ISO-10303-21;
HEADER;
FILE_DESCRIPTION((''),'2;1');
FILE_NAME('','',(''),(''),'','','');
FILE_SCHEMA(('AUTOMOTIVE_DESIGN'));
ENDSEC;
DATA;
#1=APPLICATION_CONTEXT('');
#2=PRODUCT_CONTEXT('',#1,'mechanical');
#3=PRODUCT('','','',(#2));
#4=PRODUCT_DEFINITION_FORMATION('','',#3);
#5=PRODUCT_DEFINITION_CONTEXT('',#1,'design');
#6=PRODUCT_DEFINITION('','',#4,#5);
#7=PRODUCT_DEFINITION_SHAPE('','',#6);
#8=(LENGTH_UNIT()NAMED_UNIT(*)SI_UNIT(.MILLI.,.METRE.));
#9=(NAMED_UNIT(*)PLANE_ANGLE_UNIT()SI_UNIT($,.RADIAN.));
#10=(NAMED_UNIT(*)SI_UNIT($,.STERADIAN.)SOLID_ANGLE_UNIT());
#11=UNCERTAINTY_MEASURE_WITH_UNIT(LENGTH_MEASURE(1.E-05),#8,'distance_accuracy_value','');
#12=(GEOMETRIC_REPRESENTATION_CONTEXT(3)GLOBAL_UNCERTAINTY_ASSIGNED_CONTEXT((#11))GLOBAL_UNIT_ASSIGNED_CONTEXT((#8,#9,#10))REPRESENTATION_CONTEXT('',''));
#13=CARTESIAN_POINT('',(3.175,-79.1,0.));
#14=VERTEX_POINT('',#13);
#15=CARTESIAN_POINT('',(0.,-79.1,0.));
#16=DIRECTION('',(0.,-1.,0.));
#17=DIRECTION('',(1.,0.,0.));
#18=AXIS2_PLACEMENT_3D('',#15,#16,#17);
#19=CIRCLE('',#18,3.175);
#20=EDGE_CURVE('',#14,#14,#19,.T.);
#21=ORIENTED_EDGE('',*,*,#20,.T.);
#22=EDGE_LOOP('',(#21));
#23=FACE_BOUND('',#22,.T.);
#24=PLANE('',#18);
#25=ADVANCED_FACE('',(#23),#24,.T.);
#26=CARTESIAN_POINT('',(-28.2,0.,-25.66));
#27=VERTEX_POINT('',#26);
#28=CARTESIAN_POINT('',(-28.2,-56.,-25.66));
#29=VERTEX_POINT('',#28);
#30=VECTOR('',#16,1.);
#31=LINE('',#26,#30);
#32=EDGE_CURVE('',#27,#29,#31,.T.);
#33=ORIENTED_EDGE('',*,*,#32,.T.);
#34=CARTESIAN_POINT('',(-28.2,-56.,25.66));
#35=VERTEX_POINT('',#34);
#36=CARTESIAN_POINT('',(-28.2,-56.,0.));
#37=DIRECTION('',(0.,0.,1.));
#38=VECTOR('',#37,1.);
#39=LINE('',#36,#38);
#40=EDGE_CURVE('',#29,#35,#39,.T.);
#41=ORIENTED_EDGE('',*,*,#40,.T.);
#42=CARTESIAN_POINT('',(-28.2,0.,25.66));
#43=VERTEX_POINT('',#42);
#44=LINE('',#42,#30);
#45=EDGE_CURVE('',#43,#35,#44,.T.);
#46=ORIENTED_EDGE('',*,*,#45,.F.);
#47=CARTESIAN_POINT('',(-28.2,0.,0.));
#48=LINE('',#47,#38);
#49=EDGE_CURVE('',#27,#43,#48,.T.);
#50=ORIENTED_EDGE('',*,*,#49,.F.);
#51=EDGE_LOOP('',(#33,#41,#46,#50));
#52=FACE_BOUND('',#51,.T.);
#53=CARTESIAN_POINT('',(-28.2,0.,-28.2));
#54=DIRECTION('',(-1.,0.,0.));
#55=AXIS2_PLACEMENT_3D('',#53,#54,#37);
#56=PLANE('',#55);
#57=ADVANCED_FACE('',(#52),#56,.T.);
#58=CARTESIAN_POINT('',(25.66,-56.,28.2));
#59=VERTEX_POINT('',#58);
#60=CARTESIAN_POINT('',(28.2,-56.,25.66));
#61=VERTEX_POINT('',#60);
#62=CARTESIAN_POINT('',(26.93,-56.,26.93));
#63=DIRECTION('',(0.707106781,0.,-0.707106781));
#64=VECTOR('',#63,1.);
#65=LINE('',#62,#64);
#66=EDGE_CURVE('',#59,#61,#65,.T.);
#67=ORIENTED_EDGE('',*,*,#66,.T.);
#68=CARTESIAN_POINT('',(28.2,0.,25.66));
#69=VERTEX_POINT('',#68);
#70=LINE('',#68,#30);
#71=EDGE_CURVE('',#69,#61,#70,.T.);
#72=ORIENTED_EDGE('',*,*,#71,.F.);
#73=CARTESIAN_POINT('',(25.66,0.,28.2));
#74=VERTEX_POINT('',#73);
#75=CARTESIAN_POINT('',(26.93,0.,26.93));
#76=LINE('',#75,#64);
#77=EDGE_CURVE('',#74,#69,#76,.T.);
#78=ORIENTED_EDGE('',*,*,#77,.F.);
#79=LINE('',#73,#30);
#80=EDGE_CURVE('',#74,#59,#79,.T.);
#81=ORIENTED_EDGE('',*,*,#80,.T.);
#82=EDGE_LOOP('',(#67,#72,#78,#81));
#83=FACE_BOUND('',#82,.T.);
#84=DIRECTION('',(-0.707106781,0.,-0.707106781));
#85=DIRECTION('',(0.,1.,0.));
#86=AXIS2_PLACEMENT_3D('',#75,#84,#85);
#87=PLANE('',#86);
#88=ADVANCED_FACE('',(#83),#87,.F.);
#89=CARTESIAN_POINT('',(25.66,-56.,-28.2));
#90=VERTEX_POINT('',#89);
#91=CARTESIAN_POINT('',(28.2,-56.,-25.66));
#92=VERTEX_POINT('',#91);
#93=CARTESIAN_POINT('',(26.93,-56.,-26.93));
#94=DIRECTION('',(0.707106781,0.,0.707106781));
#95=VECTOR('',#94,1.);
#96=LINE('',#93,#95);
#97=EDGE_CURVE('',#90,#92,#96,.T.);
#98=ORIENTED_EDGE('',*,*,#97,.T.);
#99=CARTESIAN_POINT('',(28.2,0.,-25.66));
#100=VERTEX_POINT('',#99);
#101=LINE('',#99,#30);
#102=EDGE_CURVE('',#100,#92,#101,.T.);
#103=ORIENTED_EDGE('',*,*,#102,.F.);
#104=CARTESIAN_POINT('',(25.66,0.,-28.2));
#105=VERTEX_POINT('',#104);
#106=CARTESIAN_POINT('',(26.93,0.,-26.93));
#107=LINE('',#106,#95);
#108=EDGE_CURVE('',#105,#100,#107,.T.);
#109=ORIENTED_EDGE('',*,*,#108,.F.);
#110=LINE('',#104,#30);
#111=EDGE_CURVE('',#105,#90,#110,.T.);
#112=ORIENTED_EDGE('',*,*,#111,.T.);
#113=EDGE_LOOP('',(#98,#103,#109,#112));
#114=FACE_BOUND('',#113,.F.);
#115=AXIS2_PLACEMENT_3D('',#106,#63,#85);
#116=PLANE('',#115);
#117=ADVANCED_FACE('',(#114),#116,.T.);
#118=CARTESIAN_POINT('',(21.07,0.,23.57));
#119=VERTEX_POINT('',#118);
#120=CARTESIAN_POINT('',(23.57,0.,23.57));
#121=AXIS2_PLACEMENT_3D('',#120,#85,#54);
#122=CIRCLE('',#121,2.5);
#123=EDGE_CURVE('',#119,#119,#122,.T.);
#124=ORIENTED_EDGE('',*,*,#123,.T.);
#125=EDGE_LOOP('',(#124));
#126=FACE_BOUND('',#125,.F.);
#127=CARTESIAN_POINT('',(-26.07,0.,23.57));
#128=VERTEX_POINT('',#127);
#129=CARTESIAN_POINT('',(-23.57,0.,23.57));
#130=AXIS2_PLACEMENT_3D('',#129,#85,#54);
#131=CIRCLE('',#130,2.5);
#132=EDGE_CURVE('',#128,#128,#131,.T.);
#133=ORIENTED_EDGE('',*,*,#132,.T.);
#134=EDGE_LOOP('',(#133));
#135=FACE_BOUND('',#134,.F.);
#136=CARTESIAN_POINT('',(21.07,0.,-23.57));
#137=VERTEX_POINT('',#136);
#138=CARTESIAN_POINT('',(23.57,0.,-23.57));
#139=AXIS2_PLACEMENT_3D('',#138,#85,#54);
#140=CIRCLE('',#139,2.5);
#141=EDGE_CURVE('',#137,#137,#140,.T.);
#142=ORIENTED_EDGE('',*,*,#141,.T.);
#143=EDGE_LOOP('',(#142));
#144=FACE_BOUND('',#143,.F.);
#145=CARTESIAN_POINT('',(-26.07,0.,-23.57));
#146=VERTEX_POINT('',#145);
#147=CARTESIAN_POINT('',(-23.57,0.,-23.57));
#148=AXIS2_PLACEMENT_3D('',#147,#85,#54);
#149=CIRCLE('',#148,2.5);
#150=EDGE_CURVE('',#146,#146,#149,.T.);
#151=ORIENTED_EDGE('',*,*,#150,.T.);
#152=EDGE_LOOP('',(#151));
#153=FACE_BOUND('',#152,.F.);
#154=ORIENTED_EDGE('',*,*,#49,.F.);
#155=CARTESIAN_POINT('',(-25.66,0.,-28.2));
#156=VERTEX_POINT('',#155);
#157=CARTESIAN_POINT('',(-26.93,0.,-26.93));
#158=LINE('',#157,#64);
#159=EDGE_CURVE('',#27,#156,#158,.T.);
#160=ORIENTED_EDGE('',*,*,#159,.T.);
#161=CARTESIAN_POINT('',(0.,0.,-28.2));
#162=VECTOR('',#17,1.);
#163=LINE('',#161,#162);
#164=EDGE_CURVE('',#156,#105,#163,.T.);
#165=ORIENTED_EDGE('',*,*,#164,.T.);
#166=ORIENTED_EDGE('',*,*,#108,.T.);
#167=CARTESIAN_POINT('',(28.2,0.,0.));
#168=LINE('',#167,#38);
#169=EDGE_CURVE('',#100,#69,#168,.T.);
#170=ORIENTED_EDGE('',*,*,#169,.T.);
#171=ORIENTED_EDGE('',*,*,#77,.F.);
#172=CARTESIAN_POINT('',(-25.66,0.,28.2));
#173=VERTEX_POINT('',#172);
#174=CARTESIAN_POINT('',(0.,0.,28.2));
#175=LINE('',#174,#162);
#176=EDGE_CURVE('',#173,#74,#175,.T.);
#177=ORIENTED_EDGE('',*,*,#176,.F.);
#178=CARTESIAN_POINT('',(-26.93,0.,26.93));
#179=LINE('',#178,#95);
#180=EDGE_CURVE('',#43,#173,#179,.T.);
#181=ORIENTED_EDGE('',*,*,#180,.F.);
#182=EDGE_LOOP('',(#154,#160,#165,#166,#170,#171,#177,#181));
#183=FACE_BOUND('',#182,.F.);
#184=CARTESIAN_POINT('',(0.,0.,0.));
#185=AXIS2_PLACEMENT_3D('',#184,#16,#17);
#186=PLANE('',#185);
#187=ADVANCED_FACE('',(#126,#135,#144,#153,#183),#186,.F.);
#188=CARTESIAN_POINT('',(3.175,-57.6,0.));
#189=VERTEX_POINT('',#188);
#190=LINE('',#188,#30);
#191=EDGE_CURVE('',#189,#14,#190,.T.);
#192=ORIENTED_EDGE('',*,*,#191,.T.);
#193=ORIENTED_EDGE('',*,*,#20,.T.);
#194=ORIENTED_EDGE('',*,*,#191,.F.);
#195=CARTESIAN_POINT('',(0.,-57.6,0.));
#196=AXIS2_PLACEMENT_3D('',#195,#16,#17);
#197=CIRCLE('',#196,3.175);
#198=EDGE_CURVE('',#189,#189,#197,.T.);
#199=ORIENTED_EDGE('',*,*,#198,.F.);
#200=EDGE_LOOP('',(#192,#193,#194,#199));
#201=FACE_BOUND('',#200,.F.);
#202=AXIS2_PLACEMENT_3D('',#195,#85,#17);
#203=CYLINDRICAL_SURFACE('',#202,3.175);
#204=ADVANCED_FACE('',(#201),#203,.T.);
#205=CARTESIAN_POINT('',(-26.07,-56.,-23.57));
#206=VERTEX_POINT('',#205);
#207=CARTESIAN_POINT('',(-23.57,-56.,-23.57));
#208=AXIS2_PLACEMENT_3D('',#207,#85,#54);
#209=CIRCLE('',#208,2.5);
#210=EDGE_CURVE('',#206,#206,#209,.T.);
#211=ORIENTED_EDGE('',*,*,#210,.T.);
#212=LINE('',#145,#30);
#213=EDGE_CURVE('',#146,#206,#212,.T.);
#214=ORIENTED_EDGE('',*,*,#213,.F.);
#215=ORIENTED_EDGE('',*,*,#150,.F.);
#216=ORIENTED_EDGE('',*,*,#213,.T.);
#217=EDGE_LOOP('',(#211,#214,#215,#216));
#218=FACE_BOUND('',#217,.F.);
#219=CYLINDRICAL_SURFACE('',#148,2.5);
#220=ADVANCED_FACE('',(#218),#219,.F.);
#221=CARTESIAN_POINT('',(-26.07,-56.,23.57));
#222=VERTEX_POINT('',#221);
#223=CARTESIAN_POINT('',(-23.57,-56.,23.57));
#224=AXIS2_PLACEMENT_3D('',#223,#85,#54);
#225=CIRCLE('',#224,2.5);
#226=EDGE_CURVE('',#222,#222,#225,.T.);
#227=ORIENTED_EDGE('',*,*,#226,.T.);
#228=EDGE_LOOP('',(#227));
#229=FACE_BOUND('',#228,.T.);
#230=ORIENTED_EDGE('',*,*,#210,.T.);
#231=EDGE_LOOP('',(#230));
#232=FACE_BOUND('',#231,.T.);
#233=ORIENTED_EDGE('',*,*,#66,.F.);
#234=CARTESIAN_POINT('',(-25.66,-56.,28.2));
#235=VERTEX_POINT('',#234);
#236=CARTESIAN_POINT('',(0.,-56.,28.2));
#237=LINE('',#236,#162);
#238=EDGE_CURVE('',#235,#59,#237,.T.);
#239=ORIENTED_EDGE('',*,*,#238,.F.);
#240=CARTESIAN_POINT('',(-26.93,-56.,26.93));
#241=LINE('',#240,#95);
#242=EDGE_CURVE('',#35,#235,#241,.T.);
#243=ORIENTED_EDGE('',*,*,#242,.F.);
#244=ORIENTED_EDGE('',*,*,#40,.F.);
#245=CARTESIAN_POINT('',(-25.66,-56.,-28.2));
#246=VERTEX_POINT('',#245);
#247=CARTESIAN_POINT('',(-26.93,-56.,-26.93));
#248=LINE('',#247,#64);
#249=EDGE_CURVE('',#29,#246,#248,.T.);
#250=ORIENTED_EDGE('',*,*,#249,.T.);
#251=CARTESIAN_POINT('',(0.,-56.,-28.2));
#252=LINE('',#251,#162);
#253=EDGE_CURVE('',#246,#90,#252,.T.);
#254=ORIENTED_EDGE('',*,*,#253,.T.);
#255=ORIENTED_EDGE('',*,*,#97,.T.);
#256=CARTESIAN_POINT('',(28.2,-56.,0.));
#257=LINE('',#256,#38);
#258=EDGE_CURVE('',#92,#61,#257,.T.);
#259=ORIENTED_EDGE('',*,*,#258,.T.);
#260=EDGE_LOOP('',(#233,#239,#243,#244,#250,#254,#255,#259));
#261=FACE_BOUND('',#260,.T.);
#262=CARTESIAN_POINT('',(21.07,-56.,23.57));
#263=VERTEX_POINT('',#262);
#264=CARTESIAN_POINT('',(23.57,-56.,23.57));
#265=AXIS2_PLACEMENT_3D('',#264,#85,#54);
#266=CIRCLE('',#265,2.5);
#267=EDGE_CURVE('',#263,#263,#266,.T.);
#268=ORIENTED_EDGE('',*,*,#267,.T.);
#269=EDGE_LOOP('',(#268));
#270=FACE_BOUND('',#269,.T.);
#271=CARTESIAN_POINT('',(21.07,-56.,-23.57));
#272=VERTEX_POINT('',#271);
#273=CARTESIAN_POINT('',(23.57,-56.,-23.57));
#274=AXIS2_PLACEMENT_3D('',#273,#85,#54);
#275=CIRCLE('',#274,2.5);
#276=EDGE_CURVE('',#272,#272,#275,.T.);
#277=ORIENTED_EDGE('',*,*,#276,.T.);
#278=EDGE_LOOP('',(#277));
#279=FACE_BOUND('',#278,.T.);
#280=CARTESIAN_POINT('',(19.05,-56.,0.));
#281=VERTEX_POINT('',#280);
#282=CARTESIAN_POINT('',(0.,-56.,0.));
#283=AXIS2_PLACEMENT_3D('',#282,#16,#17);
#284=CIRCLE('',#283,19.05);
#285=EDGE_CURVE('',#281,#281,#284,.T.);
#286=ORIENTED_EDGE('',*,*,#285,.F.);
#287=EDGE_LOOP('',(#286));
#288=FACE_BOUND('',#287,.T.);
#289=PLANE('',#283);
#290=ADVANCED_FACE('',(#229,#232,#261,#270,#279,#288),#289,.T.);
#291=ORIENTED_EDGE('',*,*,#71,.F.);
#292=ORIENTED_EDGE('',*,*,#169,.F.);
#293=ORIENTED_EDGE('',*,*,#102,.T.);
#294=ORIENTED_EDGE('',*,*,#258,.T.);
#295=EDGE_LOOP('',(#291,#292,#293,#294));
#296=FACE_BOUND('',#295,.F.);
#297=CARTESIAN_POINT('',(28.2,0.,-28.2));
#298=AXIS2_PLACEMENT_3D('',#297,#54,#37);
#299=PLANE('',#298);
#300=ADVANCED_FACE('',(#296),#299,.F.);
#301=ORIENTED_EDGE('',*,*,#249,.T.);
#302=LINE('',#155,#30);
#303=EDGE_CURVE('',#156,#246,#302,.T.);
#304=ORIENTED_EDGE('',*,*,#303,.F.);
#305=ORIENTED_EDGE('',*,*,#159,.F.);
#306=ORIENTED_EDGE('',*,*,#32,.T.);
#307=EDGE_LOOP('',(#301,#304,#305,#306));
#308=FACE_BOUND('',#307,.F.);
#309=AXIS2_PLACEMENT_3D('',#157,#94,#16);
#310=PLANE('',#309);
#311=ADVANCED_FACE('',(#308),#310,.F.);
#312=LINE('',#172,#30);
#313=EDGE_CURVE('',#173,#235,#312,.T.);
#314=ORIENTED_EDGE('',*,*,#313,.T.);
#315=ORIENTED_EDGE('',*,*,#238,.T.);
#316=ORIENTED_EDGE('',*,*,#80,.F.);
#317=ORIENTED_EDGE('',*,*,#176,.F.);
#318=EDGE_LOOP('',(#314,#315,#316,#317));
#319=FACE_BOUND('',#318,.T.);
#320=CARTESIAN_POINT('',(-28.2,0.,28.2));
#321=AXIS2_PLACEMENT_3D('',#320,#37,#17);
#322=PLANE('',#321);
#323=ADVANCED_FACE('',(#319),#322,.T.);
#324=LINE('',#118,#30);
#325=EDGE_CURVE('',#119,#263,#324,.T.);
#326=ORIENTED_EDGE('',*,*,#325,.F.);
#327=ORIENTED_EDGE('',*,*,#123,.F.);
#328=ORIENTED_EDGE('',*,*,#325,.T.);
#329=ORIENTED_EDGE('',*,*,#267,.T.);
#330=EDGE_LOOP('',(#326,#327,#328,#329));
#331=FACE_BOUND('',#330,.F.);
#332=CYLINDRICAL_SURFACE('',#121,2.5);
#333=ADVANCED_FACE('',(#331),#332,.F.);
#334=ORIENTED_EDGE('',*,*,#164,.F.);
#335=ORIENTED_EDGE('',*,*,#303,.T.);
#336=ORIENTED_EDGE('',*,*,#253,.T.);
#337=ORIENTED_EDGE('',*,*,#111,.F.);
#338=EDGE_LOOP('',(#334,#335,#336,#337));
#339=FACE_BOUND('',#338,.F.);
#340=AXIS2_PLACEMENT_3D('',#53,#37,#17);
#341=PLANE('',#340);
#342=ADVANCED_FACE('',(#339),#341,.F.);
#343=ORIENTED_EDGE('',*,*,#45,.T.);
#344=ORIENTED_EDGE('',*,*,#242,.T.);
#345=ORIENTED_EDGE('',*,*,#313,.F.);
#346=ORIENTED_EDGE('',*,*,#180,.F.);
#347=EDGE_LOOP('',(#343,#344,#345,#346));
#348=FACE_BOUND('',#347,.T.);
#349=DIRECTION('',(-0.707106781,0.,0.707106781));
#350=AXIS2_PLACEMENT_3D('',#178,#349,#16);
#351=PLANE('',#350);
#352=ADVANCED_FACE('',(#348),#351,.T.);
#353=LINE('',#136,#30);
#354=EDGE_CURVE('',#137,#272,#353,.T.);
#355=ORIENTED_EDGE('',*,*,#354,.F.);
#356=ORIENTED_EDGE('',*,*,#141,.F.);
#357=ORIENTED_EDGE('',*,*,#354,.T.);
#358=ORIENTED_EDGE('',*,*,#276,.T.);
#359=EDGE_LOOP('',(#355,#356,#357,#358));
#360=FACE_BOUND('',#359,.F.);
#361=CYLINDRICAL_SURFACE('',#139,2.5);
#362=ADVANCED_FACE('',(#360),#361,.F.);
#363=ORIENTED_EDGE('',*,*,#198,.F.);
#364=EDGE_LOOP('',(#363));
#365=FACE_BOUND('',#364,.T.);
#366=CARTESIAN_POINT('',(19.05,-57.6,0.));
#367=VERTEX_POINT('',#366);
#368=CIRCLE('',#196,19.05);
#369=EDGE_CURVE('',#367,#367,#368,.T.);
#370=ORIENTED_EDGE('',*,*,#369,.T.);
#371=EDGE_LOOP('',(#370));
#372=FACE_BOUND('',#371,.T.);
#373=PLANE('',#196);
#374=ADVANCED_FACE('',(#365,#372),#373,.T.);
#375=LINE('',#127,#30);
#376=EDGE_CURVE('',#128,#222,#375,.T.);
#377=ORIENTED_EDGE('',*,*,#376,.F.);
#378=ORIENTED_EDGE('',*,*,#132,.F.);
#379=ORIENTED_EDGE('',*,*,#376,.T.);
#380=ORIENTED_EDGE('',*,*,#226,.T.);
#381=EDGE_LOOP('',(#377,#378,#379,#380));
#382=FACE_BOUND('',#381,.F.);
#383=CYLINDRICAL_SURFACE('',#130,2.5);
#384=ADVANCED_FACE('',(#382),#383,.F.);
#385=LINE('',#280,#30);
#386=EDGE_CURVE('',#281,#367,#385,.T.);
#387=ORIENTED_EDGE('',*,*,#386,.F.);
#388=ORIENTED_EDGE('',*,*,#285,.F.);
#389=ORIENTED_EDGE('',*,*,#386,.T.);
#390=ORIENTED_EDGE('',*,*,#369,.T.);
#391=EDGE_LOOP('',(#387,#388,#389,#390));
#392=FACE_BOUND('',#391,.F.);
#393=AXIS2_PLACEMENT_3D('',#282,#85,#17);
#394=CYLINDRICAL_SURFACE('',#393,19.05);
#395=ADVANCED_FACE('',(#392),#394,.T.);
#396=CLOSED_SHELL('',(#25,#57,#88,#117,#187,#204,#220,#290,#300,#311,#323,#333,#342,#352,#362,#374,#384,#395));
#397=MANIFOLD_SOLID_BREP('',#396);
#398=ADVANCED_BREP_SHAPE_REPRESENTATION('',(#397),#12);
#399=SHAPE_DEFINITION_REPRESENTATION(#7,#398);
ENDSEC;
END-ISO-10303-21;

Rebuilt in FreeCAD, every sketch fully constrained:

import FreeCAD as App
import Part
import Sketcher
Q = App.Units.Quantity


def edges_at(feature, points):
    """Names of the edges that pass closest to the given points."""
    edges = feature.Shape.Edges
    near = lambda p: min(range(len(edges)), key=lambda i: edges[i].distToShape(Part.Vertex(*p))[0])
    return sorted({f"Edge{near(p) + 1}" for p in points})

doc = App.newDocument("Part")
params = doc.addObject("Spreadsheet::Sheet", "Params")
for row, (alias, value) in enumerate([
    ("sketch1_width", "56.4 mm"),
    ("pad1_length", "56 mm"),
    ("sketch2_diameter", "38.1 mm"),
    ("pad2_length", "1.6 mm"),
    ("sketch3_diameter", "6.35 mm"),
    ("pad3_length", "21.5 mm"),
    ("sketch4_diameter", "5 mm"),
    ("chamfer_size", "2.54 mm"),
], start=1):
    params.set(f"A{row}", alias)
    params.set(f"B{row}", "=" + value)
    params.setAlias(f"B{row}", alias)

body = doc.addObject("PartDesign::Body", "Body")

# Sketch on XZ plane
sketch1 = doc.addObject("Sketcher::SketchObject", "Sketch")
body.addObject(sketch1)
sketch1.AttachmentSupport = (doc.XZ_Plane, [""])
sketch1.MapMode = "FlatFace"
sketch1.addGeometry([
    Part.LineSegment(App.Vector(-28.2, 28.2, 0), App.Vector(-28.2, -28.2, 0)),
    Part.LineSegment(App.Vector(-28.2, -28.2, 0), App.Vector(28.2, -28.2, 0)),
    Part.LineSegment(App.Vector(28.2, -28.2, 0), App.Vector(28.2, 28.2, 0)),
    Part.LineSegment(App.Vector(28.2, 28.2, 0), App.Vector(-28.2, 28.2, 0)),
], False)
sketch1.addConstraint([
    Sketcher.Constraint("Coincident", 0, 2, 1, 1),
    Sketcher.Constraint("Coincident", 1, 2, 2, 1),
    Sketcher.Constraint("Coincident", 2, 2, 3, 1),
    Sketcher.Constraint("Coincident", 3, 2, 0, 1),
    Sketcher.Constraint("Vertical", 0),
    Sketcher.Constraint("Horizontal", 1),
    Sketcher.Constraint("Vertical", 2),
    Sketcher.Constraint("Horizontal", 3),
    Sketcher.Constraint("Symmetric", 0, 2, 2, 2, -1, 1),
    Sketcher.Constraint("Equal", 3, 0),
    Sketcher.Constraint("DistanceX", 1, 1, 1, 2, Q("56.4 mm")),
])
sketch1.setExpression("Constraints[10]", "Params.sketch1_width")
pad1 = doc.addObject("PartDesign::Pad", "Pad")
body.addObject(pad1)
pad1.Profile = sketch1
pad1.setExpression("Length", "Params.pad1_length")

# Sketch on XZ plane
sketch2 = doc.addObject("Sketcher::SketchObject", "Sketch001")
body.addObject(sketch2)
sketch2.AttachmentSupport = (doc.XZ_Plane, [""])
sketch2.MapMode = "FlatFace"
sketch2.AttachmentOffset = App.Placement(App.Vector(0, 0, 56), App.Rotation())
sketch2.addGeometry(Part.Circle(App.Vector(0, 0, 0), App.Vector(0, 0, 1), 19.05), False)
sketch2.addConstraint([
    Sketcher.Constraint("Coincident", 0, 3, -1, 1),
    Sketcher.Constraint("Diameter", 0, Q("38.1 mm")),
])
sketch2.setExpression("Constraints[1]", "Params.sketch2_diameter")
pad2 = doc.addObject("PartDesign::Pad", "Pad001")
body.addObject(pad2)
pad2.Profile = sketch2
pad2.setExpression("Length", "Params.pad2_length")

# Sketch on XZ plane
sketch3 = doc.addObject("Sketcher::SketchObject", "Sketch002")
body.addObject(sketch3)
sketch3.AttachmentSupport = (doc.XZ_Plane, [""])
sketch3.MapMode = "FlatFace"
sketch3.AttachmentOffset = App.Placement(App.Vector(0, 0, 57.6), App.Rotation())
sketch3.addGeometry(Part.Circle(App.Vector(0, 0, 0), App.Vector(0, 0, 1), 3.175), False)
sketch3.addConstraint([
    Sketcher.Constraint("Coincident", 0, 3, -1, 1),
    Sketcher.Constraint("Diameter", 0, Q("6.35 mm")),
])
sketch3.setExpression("Constraints[1]", "Params.sketch3_diameter")
pad3 = doc.addObject("PartDesign::Pad", "Pad002")
body.addObject(pad3)
pad3.Profile = sketch3
pad3.setExpression("Length", "Params.pad3_length")

# Sketch on XZ plane
sketch4 = doc.addObject("Sketcher::SketchObject", "Sketch003")
body.addObject(sketch4)
sketch4.AttachmentSupport = (doc.XZ_Plane, [""])
sketch4.MapMode = "FlatFace"
sketch4.addGeometry([
    Part.Circle(App.Vector(-23.57, 23.57, 0), App.Vector(0, 0, 1), 2.5),
    Part.Circle(App.Vector(-23.57, -23.57, 0), App.Vector(0, 0, 1), 2.5),
    Part.Circle(App.Vector(23.57, -23.57, 0), App.Vector(0, 0, 1), 2.5),
    Part.Circle(App.Vector(23.57, 23.57, 0), App.Vector(0, 0, 1), 2.5),
], False)
sketch4.addConstraint([
    Sketcher.Constraint("Equal", 0, 1),
    Sketcher.Constraint("Equal", 1, 2),
    Sketcher.Constraint("Equal", 2, 3),
    Sketcher.Constraint("Symmetric", 0, 3, 2, 3, -1, 1),
    Sketcher.Constraint("Symmetric", 1, 3, 3, 3, -1, 1),
    Sketcher.Constraint("Symmetric", 1, 3, 2, 3, -2),
    Sketcher.Constraint("Diameter", 0, Q("5 mm")),
    Sketcher.Constraint("DistanceX", 0, 3, -1, 1, Q("23.57 mm")),
    Sketcher.Constraint("DistanceY", -1, 1, 0, 3, Q("23.57 mm")),
])
sketch4.setExpression("Constraints[6]", "Params.sketch4_diameter")
pocket1 = doc.addObject("PartDesign::Pocket", "Pocket")
body.addObject(pocket1)
pocket1.Profile = sketch4
pocket1.Type = "ThroughAll"
pocket1.Reversed = True
doc.recompute()

chamfer = doc.addObject("PartDesign::Chamfer", "Chamfer")
body.addObject(chamfer)
chamfer.Base = (pocket1, edges_at(pocket1, [
    (28.2, -28, 28.2),
    (-28.2, -28, 28.2),
    (-28.2, -28, -28.2),
    (28.2, -28, -28.2),
]))
chamfer.setExpression("Size", "Params.chamfer_size")

doc.recompute()
